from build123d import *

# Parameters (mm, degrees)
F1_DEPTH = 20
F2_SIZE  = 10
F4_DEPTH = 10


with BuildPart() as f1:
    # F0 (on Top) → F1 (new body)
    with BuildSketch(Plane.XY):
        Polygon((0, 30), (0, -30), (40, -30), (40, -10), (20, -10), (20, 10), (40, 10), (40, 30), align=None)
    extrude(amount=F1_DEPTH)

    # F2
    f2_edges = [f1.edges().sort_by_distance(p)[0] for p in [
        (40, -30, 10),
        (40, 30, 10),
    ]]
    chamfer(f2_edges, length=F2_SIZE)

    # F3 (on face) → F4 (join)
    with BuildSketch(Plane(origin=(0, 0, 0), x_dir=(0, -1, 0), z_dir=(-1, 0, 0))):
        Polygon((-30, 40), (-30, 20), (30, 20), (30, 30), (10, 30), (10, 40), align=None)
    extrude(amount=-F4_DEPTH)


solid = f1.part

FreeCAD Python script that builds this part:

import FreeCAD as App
import Part
import Sketcher
Q = App.Units.Quantity


def edges_at(feature, points):
    """Names of the edges that pass closest to the given points."""
    edges = feature.Shape.Edges
    near = lambda p: min(range(len(edges)), key=lambda i: edges[i].distToShape(Part.Vertex(*p))[0])
    return sorted({f"Edge{near(p) + 1}" for p in points})


def add_polygon(sketch, points):
    """Adds a closed chain of lines whose ends are joined by coincident constraints."""
    first, n = sketch.GeometryCount, len(points)
    for a, b in zip(points, points[1:] + points[:1]):
        sketch.addGeometry(Part.LineSegment(App.Vector(*a, 0), App.Vector(*b, 0)), False)
    for i in range(n):
        sketch.addConstraint(Sketcher.Constraint("Coincident", first + i, 2, first + (i + 1) % n, 1))

doc = App.newDocument("Part")
params = doc.addObject("Spreadsheet::Sheet", "Params")
for row, (alias, value) in enumerate([
    ("sketch1_width", "40 mm"),
    ("sketch1_width2", "20 mm"),
    ("pad1_length", "20 mm"),
    ("chamfer_size", "10 mm"),
    ("sketch2_width", "60 mm"),
    ("sketch2_width2", "20 mm"),
    ("pad2_length", "10 mm"),
], start=1):
    params.set(f"A{row}", alias)
    params.set(f"B{row}", "=" + value)
    params.setAlias(f"B{row}", alias)

body = doc.addObject("PartDesign::Body", "Body")

# Sketch on XY plane
sketch1 = doc.addObject("Sketcher::SketchObject", "Sketch")
body.addObject(sketch1)
sketch1.AttachmentSupport = (doc.XY_Plane, [""])
sketch1.MapMode = "FlatFace"
add_polygon(sketch1, [(0, 30), (0, -30), (40, -30), (40, -10), (20, -10), (20, 10), (40, 10), (40, 30)])  # lines 0-7
sketch1.addConstraint([
    Sketcher.Constraint("Vertical", 0),
    Sketcher.Constraint("Horizontal", 1),
    Sketcher.Constraint("Vertical", 2),
    Sketcher.Constraint("Horizontal", 3),
    Sketcher.Constraint("Vertical", 4),
    Sketcher.Constraint("Horizontal", 5),
    Sketcher.Constraint("Vertical", 6),
    Sketcher.Constraint("Horizontal", 7),
    Sketcher.Constraint("Symmetric", 0, 2, 7, 2, -1, 1),
    Sketcher.Constraint("Symmetric", 2, 2, 5, 2, -1),
    Sketcher.Constraint("Equal", 5, 2),
    Sketcher.Constraint("Equal", 2, 4),
    Sketcher.Constraint("DistanceX", 1, 1, 1, 2, Q("40 mm")),
    Sketcher.Constraint("DistanceX", 3, 2, 3, 1, Q("20 mm")),
])
sketch1.setExpression("Constraints[20]", "Params.sketch1_width")
sketch1.setExpression("Constraints[21]", "Params.sketch1_width2")
pad1 = doc.addObject("PartDesign::Pad", "Pad")
body.addObject(pad1)
pad1.Profile = sketch1
pad1.setExpression("Length", "Params.pad1_length")
doc.recompute()

chamfer = doc.addObject("PartDesign::Chamfer", "Chamfer")
body.addObject(chamfer)
chamfer.Base = (pad1, edges_at(pad1, [(40, -30, 10), (40, 30, 10)]))
chamfer.setExpression("Size", "Params.chamfer_size")

# Sketch on YZ plane
sketch2 = doc.addObject("Sketcher::SketchObject", "Sketch001")
body.addObject(sketch2)
sketch2.AttachmentSupport = (doc.YZ_Plane, [""])
sketch2.MapMode = "FlatFace"
add_polygon(sketch2, [(30, 40), (30, 20), (-30, 20), (-30, 30), (-10, 30), (-10, 40)])  # lines 0-5
sketch2.addConstraint([
    Sketcher.Constraint("Vertical", 0),
    Sketcher.Constraint("Horizontal", 1),
    Sketcher.Constraint("Vertical", 2),
    Sketcher.Constraint("Horizontal", 3),
    Sketcher.Constraint("Vertical", 4),
    Sketcher.Constraint("Horizontal", 5),
    Sketcher.Constraint("Equal", 3, 0),
    Sketcher.Constraint("Equal", 2, 4),
    Sketcher.Constraint("DistanceX", 1, 2, 1, 1, Q("60 mm")),
    Sketcher.Constraint("DistanceX", 3, 1, 3, 2, Q("20 mm")),
    Sketcher.Constraint("DistanceX", -1, 1, 0, 2, Q("30 mm")),
    Sketcher.Constraint("DistanceY", -1, 1, 0, 2, Q("20 mm")),
])
sketch2.setExpression("Constraints[14]", "Params.sketch2_width")
sketch2.setExpression("Constraints[15]", "Params.sketch2_width2")
pad2 = doc.addObject("PartDesign::Pad", "Pad001")
body.addObject(pad2)
pad2.Profile = sketch2
pad2.setExpression("Length", "Params.pad2_length")

doc.recompute()
